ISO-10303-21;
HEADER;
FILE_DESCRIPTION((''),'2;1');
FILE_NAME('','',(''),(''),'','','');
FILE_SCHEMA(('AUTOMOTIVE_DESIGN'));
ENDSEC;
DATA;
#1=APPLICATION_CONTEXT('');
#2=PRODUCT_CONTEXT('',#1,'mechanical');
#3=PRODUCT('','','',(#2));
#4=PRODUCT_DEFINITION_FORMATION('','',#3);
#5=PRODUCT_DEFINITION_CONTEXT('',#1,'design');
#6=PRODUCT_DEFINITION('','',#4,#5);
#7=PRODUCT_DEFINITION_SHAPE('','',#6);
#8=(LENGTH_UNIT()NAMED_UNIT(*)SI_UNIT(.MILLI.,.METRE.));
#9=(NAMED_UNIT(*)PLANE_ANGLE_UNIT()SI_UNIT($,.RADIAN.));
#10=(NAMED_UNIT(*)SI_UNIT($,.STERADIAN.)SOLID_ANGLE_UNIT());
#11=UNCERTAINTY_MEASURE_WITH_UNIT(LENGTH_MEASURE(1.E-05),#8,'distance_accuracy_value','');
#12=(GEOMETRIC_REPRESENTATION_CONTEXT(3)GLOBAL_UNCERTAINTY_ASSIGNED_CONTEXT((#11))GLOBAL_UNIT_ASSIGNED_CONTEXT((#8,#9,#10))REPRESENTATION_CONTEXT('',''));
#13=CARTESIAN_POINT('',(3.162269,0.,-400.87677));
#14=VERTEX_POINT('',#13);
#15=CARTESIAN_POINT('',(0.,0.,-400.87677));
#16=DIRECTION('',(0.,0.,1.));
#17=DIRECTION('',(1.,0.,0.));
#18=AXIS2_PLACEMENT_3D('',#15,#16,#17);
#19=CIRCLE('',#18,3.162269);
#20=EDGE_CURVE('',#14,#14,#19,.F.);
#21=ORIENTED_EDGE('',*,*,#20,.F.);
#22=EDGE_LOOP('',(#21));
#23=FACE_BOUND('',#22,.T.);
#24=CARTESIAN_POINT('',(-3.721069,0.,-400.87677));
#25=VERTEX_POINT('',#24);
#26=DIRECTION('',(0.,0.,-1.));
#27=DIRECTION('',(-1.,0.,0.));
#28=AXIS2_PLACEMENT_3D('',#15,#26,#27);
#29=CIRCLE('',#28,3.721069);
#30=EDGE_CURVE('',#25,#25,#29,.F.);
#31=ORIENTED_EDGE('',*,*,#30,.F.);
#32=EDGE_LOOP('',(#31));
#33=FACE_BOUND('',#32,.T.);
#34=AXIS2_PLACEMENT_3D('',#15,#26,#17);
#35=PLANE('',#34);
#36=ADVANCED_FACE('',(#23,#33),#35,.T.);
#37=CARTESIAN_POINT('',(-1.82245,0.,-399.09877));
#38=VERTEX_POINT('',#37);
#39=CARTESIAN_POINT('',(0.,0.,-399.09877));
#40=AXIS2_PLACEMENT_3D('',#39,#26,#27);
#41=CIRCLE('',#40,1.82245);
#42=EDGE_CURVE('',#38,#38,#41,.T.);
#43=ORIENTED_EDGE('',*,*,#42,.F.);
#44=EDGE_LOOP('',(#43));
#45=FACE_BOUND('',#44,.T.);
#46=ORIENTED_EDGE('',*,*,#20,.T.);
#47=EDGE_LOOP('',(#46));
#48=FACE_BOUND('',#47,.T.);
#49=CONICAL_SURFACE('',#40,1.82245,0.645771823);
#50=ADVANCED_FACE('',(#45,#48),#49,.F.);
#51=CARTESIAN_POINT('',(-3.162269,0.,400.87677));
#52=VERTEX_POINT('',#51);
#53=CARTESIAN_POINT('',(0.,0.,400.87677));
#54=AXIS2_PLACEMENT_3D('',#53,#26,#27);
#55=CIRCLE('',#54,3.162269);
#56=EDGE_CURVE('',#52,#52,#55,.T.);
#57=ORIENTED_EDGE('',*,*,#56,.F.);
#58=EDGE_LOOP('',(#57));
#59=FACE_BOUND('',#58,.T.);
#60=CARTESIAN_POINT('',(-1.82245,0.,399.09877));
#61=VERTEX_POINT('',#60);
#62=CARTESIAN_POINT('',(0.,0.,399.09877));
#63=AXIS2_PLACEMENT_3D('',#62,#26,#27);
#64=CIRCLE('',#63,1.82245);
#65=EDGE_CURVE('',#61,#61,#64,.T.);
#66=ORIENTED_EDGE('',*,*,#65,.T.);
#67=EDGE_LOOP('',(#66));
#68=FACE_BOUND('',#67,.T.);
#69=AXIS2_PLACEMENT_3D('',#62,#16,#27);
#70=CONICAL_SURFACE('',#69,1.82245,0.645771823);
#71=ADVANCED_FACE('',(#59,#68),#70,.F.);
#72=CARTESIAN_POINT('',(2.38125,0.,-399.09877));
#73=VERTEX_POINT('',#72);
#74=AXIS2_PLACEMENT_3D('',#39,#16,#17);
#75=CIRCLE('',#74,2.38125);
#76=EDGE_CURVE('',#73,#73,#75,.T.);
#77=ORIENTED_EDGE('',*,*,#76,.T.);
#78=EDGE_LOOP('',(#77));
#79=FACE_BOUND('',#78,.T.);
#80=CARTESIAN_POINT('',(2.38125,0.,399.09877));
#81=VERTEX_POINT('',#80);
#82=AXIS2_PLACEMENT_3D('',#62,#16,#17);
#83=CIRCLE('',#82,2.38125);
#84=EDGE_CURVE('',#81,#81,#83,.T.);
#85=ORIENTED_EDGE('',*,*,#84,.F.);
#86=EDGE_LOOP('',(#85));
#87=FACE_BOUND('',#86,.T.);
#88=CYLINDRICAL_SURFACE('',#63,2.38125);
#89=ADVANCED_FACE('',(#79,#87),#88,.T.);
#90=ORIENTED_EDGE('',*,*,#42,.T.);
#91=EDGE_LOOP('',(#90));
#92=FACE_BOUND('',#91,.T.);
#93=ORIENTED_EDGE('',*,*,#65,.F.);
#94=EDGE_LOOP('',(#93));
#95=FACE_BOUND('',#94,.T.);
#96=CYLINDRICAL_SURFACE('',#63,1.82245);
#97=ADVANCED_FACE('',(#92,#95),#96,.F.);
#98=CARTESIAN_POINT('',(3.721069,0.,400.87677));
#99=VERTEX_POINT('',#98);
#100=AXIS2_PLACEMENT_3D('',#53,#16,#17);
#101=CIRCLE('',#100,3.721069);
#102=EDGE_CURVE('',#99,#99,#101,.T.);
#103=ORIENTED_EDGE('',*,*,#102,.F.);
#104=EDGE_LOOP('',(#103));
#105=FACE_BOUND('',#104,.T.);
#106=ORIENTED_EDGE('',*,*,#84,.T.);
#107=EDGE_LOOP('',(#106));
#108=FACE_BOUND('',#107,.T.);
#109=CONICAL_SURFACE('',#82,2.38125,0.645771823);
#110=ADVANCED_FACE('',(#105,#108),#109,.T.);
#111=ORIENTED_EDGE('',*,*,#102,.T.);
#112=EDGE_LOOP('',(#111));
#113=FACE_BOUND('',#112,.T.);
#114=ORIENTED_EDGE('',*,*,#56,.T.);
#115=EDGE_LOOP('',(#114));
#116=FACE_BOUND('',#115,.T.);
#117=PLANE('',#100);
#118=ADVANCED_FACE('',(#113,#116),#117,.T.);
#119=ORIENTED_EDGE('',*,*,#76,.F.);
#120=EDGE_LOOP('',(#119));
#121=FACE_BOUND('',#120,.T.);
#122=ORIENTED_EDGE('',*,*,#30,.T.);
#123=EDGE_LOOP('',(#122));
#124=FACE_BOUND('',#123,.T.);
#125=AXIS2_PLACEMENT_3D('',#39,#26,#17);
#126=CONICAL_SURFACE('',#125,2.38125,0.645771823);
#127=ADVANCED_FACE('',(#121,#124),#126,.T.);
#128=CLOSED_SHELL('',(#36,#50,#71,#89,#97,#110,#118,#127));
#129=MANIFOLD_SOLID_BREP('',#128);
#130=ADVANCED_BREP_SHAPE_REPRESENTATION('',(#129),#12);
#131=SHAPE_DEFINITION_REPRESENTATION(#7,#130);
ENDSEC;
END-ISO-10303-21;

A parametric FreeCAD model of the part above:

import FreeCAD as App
import Part
import Sketcher
from FreeCAD import Vector
Q = App.Units.Quantity

doc = App.newDocument("Part")
body = doc.addObject("PartDesign::Body", "Body")

sketch1 = body.newObject("Sketcher::SketchObject", "Sketch")
sketch1.AttachmentSupport = (doc.getObject("XY_Plane"), [""])
sketch1.MapMode = "FlatFace"
sketch1.addGeometry([
    Part.Circle(Vector(0, 0, 0), Vector(0, 0, 1), 2.38125),
    Part.Circle(Vector(0, 0, 0), Vector(0, 0, 1), 1.82245),
], False)
sketch1.addConstraint([
    Sketcher.Constraint("Coincident", 0, 3, -1, 1),
    Sketcher.Constraint("Coincident", 1, 3, -1, 1),
    Sketcher.Constraint("Diameter", 0, Q("0.1875 in")),
    Sketcher.Constraint("Diameter", 1, Q("0.1435 in")),
])
pad1 = body.newObject("PartDesign::Pad", "Pad")
pad1.Profile = sketch1
pad1.Length = Q("31.4251 in")
pad1.Midplane = True

sketch2 = body.newObject("Sketcher::SketchObject", "Sketch001")
sketch2.AttachmentSupport = (doc.getObject("XY_Plane"), [""])
sketch2.MapMode = "FlatFace"
sketch2.AttachmentOffset = App.Placement(Vector(0, 0, 399.09877), App.Rotation())
sketch2.addGeometry(Part.Circle(Vector(0, 0, 0), Vector(0, 0, 1), 2.38125), False)
sketch2.addConstraint([
    Sketcher.Constraint("Coincident", 0, 3, -1, 1),
    Sketcher.Constraint("Diameter", 0, Q("0.1875 in")),
])
pad2 = body.newObject("PartDesign::Pad", "Pad001")
pad2.Profile = sketch2
pad2.Length = Q("0.07 in")
pad2.TaperAngle = 37

sketch3 = body.newObject("Sketcher::SketchObject", "Sketch002")
sketch3.AttachmentSupport = (doc.getObject("XY_Plane"), [""])
sketch3.MapMode = "FlatFace"
sketch3.AttachmentOffset = App.Placement(Vector(0, 0, 399.09877), App.Rotation())
sketch3.addGeometry(Part.Circle(Vector(0, 0, 0), Vector(0, 0, 1), 1.82245), False)
sketch3.addConstraint([
    Sketcher.Constraint("Coincident", 0, 3, -1, 1),
    Sketcher.Constraint("Diameter", 0, Q("0.1435 in")),
])
pocket1 = body.newObject("PartDesign::Pocket", "Pocket")
pocket1.Profile = sketch3
pocket1.Type = "ThroughAll"
pocket1.Reversed = True
pocket1.TaperAngle = 37
doc.recompute()

mirrored = body.newObject("PartDesign::Mirrored", "Mirrored")
mirrored.Originals = [pad2, pocket1]
mirrored.MirrorPlane = (doc.getObject("XY_Plane"), [""])
body.Tip = mirrored

doc.recompute()
